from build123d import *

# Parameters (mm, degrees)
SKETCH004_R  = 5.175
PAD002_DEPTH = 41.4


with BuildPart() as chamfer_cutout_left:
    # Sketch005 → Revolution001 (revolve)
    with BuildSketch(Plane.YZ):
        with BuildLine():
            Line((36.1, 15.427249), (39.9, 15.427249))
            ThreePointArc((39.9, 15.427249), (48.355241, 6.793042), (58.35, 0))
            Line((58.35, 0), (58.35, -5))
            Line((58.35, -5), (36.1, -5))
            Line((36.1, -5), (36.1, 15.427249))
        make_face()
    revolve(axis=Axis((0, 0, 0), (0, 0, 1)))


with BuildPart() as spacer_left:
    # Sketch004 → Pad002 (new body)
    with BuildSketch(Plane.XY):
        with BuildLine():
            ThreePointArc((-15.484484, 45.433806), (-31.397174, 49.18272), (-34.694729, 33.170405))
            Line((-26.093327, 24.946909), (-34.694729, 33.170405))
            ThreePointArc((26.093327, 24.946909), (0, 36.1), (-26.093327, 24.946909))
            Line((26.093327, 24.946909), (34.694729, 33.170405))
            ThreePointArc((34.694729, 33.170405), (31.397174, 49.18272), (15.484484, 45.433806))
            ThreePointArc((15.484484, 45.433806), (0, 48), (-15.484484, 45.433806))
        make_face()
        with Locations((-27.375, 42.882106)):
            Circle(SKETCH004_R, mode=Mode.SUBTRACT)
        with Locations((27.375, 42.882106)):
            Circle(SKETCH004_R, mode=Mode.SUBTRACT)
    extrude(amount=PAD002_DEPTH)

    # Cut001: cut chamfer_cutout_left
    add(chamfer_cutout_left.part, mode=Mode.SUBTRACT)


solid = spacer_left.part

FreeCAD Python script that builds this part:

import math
import FreeCAD as App
import Part
import Sketcher
Q = App.Units.Quantity

doc = App.newDocument("Part")
params = doc.addObject("Spreadsheet::Sheet", "Params")
for row, (alias, value) in enumerate([
    ("sketch1_height", "5 mm"),
    ("sketch1_width", "3.8 mm"),
    ("sketch1_width2", "22.25 mm"),
    ("revolution_angle", "360 deg"),
    ("sketch2_radius", "11.4 mm"),
    ("sketch2_radius2", "36.099999 mm"),
    ("sketch2_diameter", "10.35 mm"),
    ("sketch2_length", "11.9 mm"),
    ("pad1_length", "41.4 mm"),
], start=1):
    params.set(f"A{row}", alias)
    params.set(f"B{row}", "=" + value)
    params.setAlias(f"B{row}", alias)

body = doc.addObject("PartDesign::Body", "Body")

sketch1 = body.newObject("Sketcher::SketchObject", "Sketch")
sketch1.AttachmentSupport = (doc.getObject("YZ_Plane"), [""])
sketch1.MapMode = "FlatFace"
sketch1.addGeometry(Part.LineSegment(App.Vector(39.9, 15.427249, 0), App.Vector(36.1, 15.427249, 0)), False)
sketch1.addGeometry(Part.LineSegment(App.Vector(36.1, 15.427249, 0), App.Vector(36.1, -5, 0)), False)
sketch1.addGeometry(Part.LineSegment(App.Vector(36.1, -5, 0), App.Vector(58.35, -5, 0)), False)
sketch1.addGeometry(Part.LineSegment(App.Vector(58.35, -5, 0), App.Vector(58.35, 0, 0)), False)
sketch1.addGeometry(Part.ArcOfCircle(Part.Circle(App.Vector(87.388579, 53.474411, 0), App.Vector(0, 0, 1), 60.85024), math.radians(-141.298798), math.radians(-118.503594)), False)
sketch1.addConstraint(Sketcher.Constraint("Coincident", 0, 2, 1, 1))
sketch1.addConstraint(Sketcher.Constraint("Coincident", 1, 2, 2, 1))
sketch1.addConstraint(Sketcher.Constraint("Coincident", 2, 2, 3, 1))
sketch1.addConstraint(Sketcher.Constraint("Coincident", 3, 2, 4, 2))
sketch1.addConstraint(Sketcher.Constraint("Coincident", 4, 1, 0, 1))
sketch1.addConstraint(Sketcher.Constraint("Horizontal", 0))
sketch1.addConstraint(Sketcher.Constraint("Vertical", 1))
sketch1.addConstraint(Sketcher.Constraint("Horizontal", 2))
sketch1.addConstraint(Sketcher.Constraint("Vertical", 3))
sketch1.addConstraint(Sketcher.Constraint("PointOnObject", 3, 2, -1))
sketch1.addConstraint(Sketcher.Constraint("DistanceY", 3, 1, 3, 2, Q("5 mm")))
sketch1.addConstraint(Sketcher.Constraint("DistanceX", 0, 2, 0, 1, Q("3.8 mm")))
sketch1.addConstraint(Sketcher.Constraint("DistanceX", 2, 1, 2, 2, Q("22.25 mm")))
sketch1.addConstraint(Sketcher.Constraint("DistanceX", -1, 1, 0, 2, Q("36.1 mm")))
sketch1.addConstraint(Sketcher.Constraint("Radius", 4, Q("60.85024 mm")))
sketch1.addConstraint(Sketcher.Constraint("DistanceY", 1, 2, 1, 1, Q("20.427249 mm")))
sketch1.setExpression("Constraints[10]", "Params.sketch1_height")
sketch1.setExpression("Constraints[11]", "Params.sketch1_width")
sketch1.setExpression("Constraints[12]", "Params.sketch1_width2")
revolution = body.newObject("PartDesign::Revolution", "Revolution")
revolution.Profile = sketch1
revolution.ReferenceAxis = (sketch1, ["V_Axis"])
revolution.setExpression("Angle", "Params.revolution_angle")
body2 = doc.addObject("PartDesign::Body", "Body001")

sketch2 = body2.newObject("Sketcher::SketchObject", "Sketch001")
sketch2.AttachmentSupport = (doc.getObject("XY_Plane001"), [""])
sketch2.MapMode = "FlatFace"
sketch2.addGeometry(Part.ArcOfCircle(Part.Circle(App.Vector(-25.263022, 39.573756, 0), App.Vector(0, 0, 1), 11.4), math.radians(30.933272), math.radians(214.173272)), False)
sketch2.addGeometry(Part.LineSegment(App.Vector(-34.694729, 33.170405, 0), App.Vector(-26.093327, 24.946909, 0)), False)
sketch2.addGeometry(Part.ArcOfCircle(Part.Circle(App.Vector(0, 0.000001, 0), App.Vector(0, 0, 1), 36.099999), math.radians(43.713291), math.radians(136.286709)), False)
sketch2.addGeometry(Part.LineSegment(App.Vector(26.093327, 24.946909, 0), App.Vector(34.694729, 33.170405, 0)), False)
sketch2.addGeometry(Part.ArcOfCircle(Part.Circle(App.Vector(25.263022, 39.573756, 0), App.Vector(0, 0, 1), 11.4), math.radians(-34.173272), math.radians(149.066728)), False)
sketch2.addGeometry(Part.ArcOfCircle(Part.Circle(App.Vector(0, 0.000005, 0), App.Vector(0, 0, 1), 47.999995), math.radians(71.180161), math.radians(108.819839)), False)
sketch2.addGeometry(Part.Circle(App.Vector(-27.375, 42.882106, 0), App.Vector(0, 0, 1), 5.175), False)
sketch2.addGeometry(Part.Circle(App.Vector(27.375, 42.882106, 0), App.Vector(0, 0, 1), 5.175), False)
sketch2.addConstraint(Sketcher.Constraint("Coincident", 0, 2, 1, 1))
sketch2.addConstraint(Sketcher.Constraint("Coincident", 1, 2, 2, 2))
sketch2.addConstraint(Sketcher.Constraint("Coincident", 2, 1, 3, 1))
sketch2.addConstraint(Sketcher.Constraint("Coincident", 3, 2, 4, 1))
sketch2.addConstraint(Sketcher.Constraint("Coincident", 4, 2, 5, 1))
sketch2.addConstraint(Sketcher.Constraint("Coincident", 5, 2, 0, 1))
sketch2.addConstraint(Sketcher.Constraint("Coincident", 2, 3, -1, 1))
sketch2.addConstraint(Sketcher.Constraint("Coincident", 5, 3, -1, 1))
sketch2.addConstraint(Sketcher.Constraint("Equal", 0, 4))
sketch2.addConstraint(Sketcher.Constraint("Equal", 6, 7))
sketch2.addConstraint(Sketcher.Constraint("Symmetric", 0, 3, 4, 3, -2))
sketch2.addConstraint(Sketcher.Constraint("Symmetric", 6, 3, 7, 3, -2))
sketch2.addConstraint(Sketcher.Constraint("Horizontal", 1, 2, 2, 1))
sketch2.addConstraint(Sketcher.Constraint("Horizontal", 0, 2, 3, 2))
sketch2.addConstraint(Sketcher.Constraint("Radius", 0, Q("11.4 mm")))
sketch2.addConstraint(Sketcher.Constraint("Radius", 2, Q("36.099999 mm")))
sketch2.addConstraint(Sketcher.Constraint("Diameter", 6, Q("10.35 mm")))
sketch2.addConstraint(Sketcher.Constraint("Distance", 1, Q("11.9 mm")))
sketch2.addConstraint(Sketcher.Constraint("DistanceX", 6, 3, 7, 3, Q("54.75 mm")))
sketch2.addConstraint(Sketcher.Constraint("Radius", 5, Q("47.999995 mm")))
sketch2.addConstraint(Sketcher.Constraint("DistanceY", 5, 3, 6, 3, Q("42.882101 mm")))
sketch2.addConstraint(Sketcher.Constraint("DistanceY", 0, 2, 6, 3, Q("9.711701 mm")))
sketch2.addConstraint(Sketcher.Constraint("DistanceX", 0, 2, 1, 2, Q("8.601402 mm")))
sketch2.addConstraint(Sketcher.Constraint("DistanceY", 5, 3, 0, 3, Q("39.573751 mm")))
sketch2.setExpression("Constraints[14]", "Params.sketch2_radius")
sketch2.setExpression("Constraints[15]", "Params.sketch2_radius2")
sketch2.setExpression("Constraints[16]", "Params.sketch2_diameter")
sketch2.setExpression("Constraints[17]", "Params.sketch2_length")
pad1 = body2.newObject("PartDesign::Pad", "Pad")
pad1.Profile = sketch2
pad1.setExpression("Length", "Params.pad1_length")
doc.recompute()

boolean = body2.newObject("PartDesign::Boolean", "Boolean")
boolean.Type = "Cut"
boolean.addObjects([body])

doc.recompute()
